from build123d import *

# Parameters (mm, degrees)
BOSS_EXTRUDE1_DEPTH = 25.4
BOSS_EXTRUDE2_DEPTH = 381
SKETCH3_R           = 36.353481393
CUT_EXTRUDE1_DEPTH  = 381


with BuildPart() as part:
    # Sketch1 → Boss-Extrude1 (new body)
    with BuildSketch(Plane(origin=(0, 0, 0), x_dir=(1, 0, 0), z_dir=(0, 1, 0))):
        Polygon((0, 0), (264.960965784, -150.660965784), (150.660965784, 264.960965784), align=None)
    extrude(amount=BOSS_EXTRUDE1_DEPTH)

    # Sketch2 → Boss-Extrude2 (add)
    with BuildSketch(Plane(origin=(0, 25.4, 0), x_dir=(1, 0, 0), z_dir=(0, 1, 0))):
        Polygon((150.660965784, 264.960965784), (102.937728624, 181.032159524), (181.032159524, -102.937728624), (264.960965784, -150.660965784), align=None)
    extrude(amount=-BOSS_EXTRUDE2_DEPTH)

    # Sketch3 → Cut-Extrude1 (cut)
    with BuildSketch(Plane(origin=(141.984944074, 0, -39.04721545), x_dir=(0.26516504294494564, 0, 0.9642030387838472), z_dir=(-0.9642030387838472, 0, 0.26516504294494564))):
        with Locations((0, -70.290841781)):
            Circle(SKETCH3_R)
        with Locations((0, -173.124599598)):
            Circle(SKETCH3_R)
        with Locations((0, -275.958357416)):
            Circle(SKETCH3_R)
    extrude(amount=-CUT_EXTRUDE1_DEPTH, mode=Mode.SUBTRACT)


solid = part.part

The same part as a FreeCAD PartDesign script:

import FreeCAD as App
import Part
import Sketcher
Q = App.Units.Quantity


def add_polygon(sketch, points):
    """Adds a closed chain of lines whose ends are joined by coincident constraints."""
    first, n = sketch.GeometryCount, len(points)
    for a, b in zip(points, points[1:] + points[:1]):
        sketch.addGeometry(Part.LineSegment(App.Vector(*a, 0), App.Vector(*b, 0)), False)
    for i in range(n):
        sketch.addConstraint(Sketcher.Constraint("Coincident", first + i, 2, first + (i + 1) % n, 1))

doc = App.newDocument("Part")
body = doc.addObject("PartDesign::Body", "Body")

sketch1 = body.newObject("Sketcher::SketchObject", "Sketch")
sketch1.AttachmentSupport = (doc.getObject("XZ_Plane"), [""])
sketch1.MapMode = "FlatFace"
add_polygon(sketch1, [(0, 0), (265, 151), (151, -265)])
sketch1.addConstraint([
    Sketcher.Constraint("Coincident", 2, 2, -1, 1),
    Sketcher.Constraint("Perpendicular", 0, 2),
    Sketcher.Constraint("Equal", 0, 2),
    Sketcher.Constraint("Distance", 0, Q("12 in")),
    Sketcher.Constraint("DistanceX", 1, 2, 0, 2, Q("4.5 in")),
])
pad1 = body.newObject("PartDesign::Pad", "Pad")
pad1.Profile = sketch1
pad1.Length = Q("1 in")
pad1.Reversed = True

sketch2 = body.newObject("Sketcher::SketchObject", "Sketch001")
sketch2.AttachmentSupport = (doc.getObject("XZ_Plane"), [""])
sketch2.MapMode = "FlatFace"
sketch2.AttachmentOffset = App.Placement(App.Vector(0, 0, -1 * 25.4), App.Rotation())
add_polygon(sketch2, [(151, -265), (103, -181), (181, 103), (265, 151)])
sketch2.addConstraint([
    Sketcher.Constraint("Perpendicular", 0, 2),
    Sketcher.Constraint("Parallel", 1, 3),
    Sketcher.Constraint("Equal", 0, 2),
    Sketcher.Constraint("DistanceX", 3, 2, 2, 2, Q("4.5 in")),
    Sketcher.Constraint("DistanceX", -1, 1, 0, 2, 102.937729),
    Sketcher.Constraint("DistanceY", 0, 2, -1, 1, 181.03216),
    Sketcher.Constraint("DistanceX", -1, 1, 1, 2, 181.03216),
    Sketcher.Constraint("DistanceY", -1, 1, 1, 2, 102.937729),
])
pad2 = body.newObject("PartDesign::Pad", "Pad001")
pad2.Profile = sketch2
pad2.Length = Q("15 in")

sketch3 = body.newObject("Sketcher::SketchObject", "Sketch002")
sketch3.Placement = App.Placement(App.Vector(141.984944, 0, -39.047215), App.Rotation(App.Vector(0.265165043, 0, 0.964203039), App.Vector(0, 1, 0), App.Vector(-0.964203039, 0, 0.265165043), "ZXY"))
sketch3.addGeometry([
    Part.Circle(App.Vector(0, -70, 0), App.Vector(0, 0, 1), 36),
    Part.Circle(App.Vector(0, -173, 0), App.Vector(0, 0, 1), 36),
    Part.Circle(App.Vector(0, -276, 0), App.Vector(0, 0, 1), 36),
], False)
sketch3.addConstraint([
    Sketcher.Constraint("Equal", 0, 1),
    Sketcher.Constraint("Equal", 1, 2),
    Sketcher.Constraint("PointOnObject", 0, 3, -2),
    Sketcher.Constraint("PointOnObject", 1, 3, -2),
    Sketcher.Constraint("PointOnObject", 2, 3, -2),
    Sketcher.Constraint("Diameter", 0, 72.706963),
    Sketcher.Constraint("DistanceY", 1, 3, -1, 1, 173.1246),
    Sketcher.Constraint("DistanceY", 0, 3, -1, 1, 70.290842),
    Sketcher.Constraint("DistanceY", 2, 3, -1, 1, 275.958358),
])
pocket1 = body.newObject("PartDesign::Pocket", "Pocket")
pocket1.Profile = sketch3
pocket1.Length = Q("15 in")

doc.recompute()
